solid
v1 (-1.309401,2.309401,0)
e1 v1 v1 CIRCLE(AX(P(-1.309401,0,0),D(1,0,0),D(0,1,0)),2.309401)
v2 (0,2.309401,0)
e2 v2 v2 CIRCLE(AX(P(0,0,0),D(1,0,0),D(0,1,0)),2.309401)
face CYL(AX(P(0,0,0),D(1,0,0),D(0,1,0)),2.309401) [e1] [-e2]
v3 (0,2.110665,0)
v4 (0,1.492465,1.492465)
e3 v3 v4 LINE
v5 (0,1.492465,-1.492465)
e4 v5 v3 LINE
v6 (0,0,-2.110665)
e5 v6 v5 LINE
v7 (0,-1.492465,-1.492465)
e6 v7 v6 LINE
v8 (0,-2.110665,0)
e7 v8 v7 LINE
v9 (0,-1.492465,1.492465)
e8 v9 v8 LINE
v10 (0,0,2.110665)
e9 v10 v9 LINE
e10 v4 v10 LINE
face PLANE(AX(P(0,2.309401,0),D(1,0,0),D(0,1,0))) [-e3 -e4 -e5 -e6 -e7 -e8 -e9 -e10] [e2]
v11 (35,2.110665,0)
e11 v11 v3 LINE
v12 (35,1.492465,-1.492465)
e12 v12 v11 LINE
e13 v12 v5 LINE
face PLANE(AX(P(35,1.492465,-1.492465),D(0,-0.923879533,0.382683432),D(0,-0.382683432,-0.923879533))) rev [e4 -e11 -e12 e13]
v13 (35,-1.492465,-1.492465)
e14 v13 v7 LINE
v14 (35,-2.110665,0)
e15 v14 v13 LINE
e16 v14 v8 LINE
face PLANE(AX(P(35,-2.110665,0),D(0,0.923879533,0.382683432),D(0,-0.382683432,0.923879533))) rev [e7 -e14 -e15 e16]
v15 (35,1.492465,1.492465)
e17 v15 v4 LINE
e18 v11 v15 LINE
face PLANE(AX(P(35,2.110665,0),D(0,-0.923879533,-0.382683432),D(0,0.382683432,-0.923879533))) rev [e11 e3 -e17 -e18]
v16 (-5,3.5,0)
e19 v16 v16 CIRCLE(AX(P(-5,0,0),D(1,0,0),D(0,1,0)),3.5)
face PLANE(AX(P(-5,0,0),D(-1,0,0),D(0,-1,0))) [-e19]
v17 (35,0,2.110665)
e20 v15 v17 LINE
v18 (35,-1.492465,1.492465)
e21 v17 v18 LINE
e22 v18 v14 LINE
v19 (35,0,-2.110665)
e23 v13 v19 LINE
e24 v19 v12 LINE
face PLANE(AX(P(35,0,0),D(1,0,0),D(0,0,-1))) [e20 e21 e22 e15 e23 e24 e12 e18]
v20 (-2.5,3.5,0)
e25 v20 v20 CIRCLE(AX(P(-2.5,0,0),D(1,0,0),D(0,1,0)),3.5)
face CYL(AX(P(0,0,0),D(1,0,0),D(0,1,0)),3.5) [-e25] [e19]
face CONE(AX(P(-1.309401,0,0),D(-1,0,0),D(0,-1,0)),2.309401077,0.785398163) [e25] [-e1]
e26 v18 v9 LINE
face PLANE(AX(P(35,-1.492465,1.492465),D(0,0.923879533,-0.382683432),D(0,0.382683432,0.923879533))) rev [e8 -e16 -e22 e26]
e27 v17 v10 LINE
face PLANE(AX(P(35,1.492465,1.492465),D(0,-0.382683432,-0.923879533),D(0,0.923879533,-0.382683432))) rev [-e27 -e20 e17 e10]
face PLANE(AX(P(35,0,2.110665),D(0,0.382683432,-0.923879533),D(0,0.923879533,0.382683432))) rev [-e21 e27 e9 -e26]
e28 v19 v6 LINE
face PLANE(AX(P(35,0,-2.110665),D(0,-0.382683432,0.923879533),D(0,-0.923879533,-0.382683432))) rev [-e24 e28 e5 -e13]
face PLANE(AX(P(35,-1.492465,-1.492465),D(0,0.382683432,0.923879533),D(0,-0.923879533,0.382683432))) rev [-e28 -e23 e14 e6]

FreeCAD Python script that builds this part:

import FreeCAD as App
import Part
import Sketcher
from FreeCAD import Vector
Q = App.Units.Quantity

doc = App.newDocument("Part")
body = doc.addObject("PartDesign::Body", "Body")

sketch1 = body.newObject("Sketcher::SketchObject", "Sketch")
sketch1.AttachmentSupport = (doc.getObject("YZ_Plane"), [""])
sketch1.MapMode = "FlatFace"
sketch1.addGeometry([
    Part.LineSegment(Vector(0, 2.110665, 0), Vector(-1.492465, 1.492465, 0)),
    Part.LineSegment(Vector(-1.492465, 1.492465, 0), Vector(-2.110665, 0, 0)),
    Part.LineSegment(Vector(-2.110665, 0, 0), Vector(-1.492465, -1.492465, 0)),
    Part.LineSegment(Vector(-1.492465, -1.492465, 0), Vector(0, -2.110665, 0)),
    Part.LineSegment(Vector(0, -2.110665, 0), Vector(1.492465, -1.492465, 0)),
    Part.LineSegment(Vector(1.492465, -1.492465, 0), Vector(2.110665, 0, 0)),
    Part.LineSegment(Vector(2.110665, 0, 0), Vector(1.492465, 1.492465, 0)),
    Part.LineSegment(Vector(1.492465, 1.492465, 0), Vector(0, 2.110665, 0)),
], False)
sketch1.addConstraint([
    Sketcher.Constraint("Coincident", 0, 2, 1, 1),
    Sketcher.Constraint("Coincident", 1, 2, 2, 1),
    Sketcher.Constraint("Coincident", 2, 2, 3, 1),
    Sketcher.Constraint("Coincident", 3, 2, 4, 1),
    Sketcher.Constraint("Coincident", 4, 2, 5, 1),
    Sketcher.Constraint("Coincident", 5, 2, 6, 1),
    Sketcher.Constraint("Coincident", 6, 2, 7, 1),
    Sketcher.Constraint("Coincident", 7, 2, 0, 1),
    Sketcher.Constraint("Symmetric", 0, 2, 4, 2, -1, 1),
    Sketcher.Constraint("Symmetric", 1, 2, 5, 2, -1, 1),
    Sketcher.Constraint("Symmetric", 2, 2, 6, 2, -1, 1),
    Sketcher.Constraint("Symmetric", 3, 2, 7, 2, -1, 1),
    Sketcher.Constraint("Symmetric", 2, 2, 4, 2, -2),
    Sketcher.Constraint("PointOnObject", 1, 2, -1),
    Sketcher.Constraint("PointOnObject", 3, 2, -2),
    Sketcher.Constraint("Perpendicular", 0, 2),
    Sketcher.Constraint("Equal", 0, 1),
    Sketcher.Constraint("Angle", 0, Q("-157.5 deg")),
    Sketcher.Constraint("DistanceX", 1, 2, 0, 2, Q("0.618199 mm")),
])
pad1 = body.newObject("PartDesign::Pad", "Pad")
pad1.Profile = sketch1
pad1.Length = 35

sketch2 = body.newObject("Sketcher::SketchObject", "Sketch001")
sketch2.AttachmentSupport = (doc.getObject("XY_Plane"), [""])
sketch2.MapMode = "FlatFace"
sketch2.addGeometry([
    Part.LineSegment(Vector(-5, 0, 0), Vector(0, 0, 0)),
    Part.LineSegment(Vector(0, 0, 0), Vector(0, 2.309401, 0)),
    Part.LineSegment(Vector(0, 2.309401, 0), Vector(-1.309401, 2.309401, 0)),
    Part.LineSegment(Vector(-1.309401, 2.309401, 0), Vector(-2.5, 3.5, 0)),
    Part.LineSegment(Vector(-2.5, 3.5, 0), Vector(-5, 3.5, 0)),
    Part.LineSegment(Vector(-5, 3.5, 0), Vector(-5, 0, 0)),
], False)
sketch2.addConstraint([
    Sketcher.Constraint("Coincident", 0, 2, 1, 1),
    Sketcher.Constraint("Coincident", 1, 2, 2, 1),
    Sketcher.Constraint("Coincident", 2, 2, 3, 1),
    Sketcher.Constraint("Coincident", 3, 2, 4, 1),
    Sketcher.Constraint("Coincident", 4, 2, 5, 1),
    Sketcher.Constraint("Coincident", 5, 2, 0, 1),
    Sketcher.Constraint("Horizontal", 0),
    Sketcher.Constraint("Vertical", 1),
    Sketcher.Constraint("Horizontal", 2),
    Sketcher.Constraint("Horizontal", 4),
    Sketcher.Constraint("Vertical", 5),
    Sketcher.Constraint("Coincident", 0, 2, -1, 1),
    Sketcher.Constraint("DistanceX", 0, 1, 0, 2, Q("5 mm")),
    Sketcher.Constraint("Angle", 3, Q("135 deg")),
    Sketcher.Constraint("DistanceX", 4, 2, 4, 1, Q("2.5 mm")),
    Sketcher.Constraint("DistanceY", 5, 2, 5, 1, Q("3.5 mm")),
    Sketcher.Constraint("DistanceX", 2, 2, 2, 1, Q("1.309401 mm")),
])
revolution = body.newObject("PartDesign::Revolution", "Revolution")
revolution.Profile = sketch2
revolution.ReferenceAxis = (sketch2, ["H_Axis"])
revolution.Angle = 360

doc.recompute()
